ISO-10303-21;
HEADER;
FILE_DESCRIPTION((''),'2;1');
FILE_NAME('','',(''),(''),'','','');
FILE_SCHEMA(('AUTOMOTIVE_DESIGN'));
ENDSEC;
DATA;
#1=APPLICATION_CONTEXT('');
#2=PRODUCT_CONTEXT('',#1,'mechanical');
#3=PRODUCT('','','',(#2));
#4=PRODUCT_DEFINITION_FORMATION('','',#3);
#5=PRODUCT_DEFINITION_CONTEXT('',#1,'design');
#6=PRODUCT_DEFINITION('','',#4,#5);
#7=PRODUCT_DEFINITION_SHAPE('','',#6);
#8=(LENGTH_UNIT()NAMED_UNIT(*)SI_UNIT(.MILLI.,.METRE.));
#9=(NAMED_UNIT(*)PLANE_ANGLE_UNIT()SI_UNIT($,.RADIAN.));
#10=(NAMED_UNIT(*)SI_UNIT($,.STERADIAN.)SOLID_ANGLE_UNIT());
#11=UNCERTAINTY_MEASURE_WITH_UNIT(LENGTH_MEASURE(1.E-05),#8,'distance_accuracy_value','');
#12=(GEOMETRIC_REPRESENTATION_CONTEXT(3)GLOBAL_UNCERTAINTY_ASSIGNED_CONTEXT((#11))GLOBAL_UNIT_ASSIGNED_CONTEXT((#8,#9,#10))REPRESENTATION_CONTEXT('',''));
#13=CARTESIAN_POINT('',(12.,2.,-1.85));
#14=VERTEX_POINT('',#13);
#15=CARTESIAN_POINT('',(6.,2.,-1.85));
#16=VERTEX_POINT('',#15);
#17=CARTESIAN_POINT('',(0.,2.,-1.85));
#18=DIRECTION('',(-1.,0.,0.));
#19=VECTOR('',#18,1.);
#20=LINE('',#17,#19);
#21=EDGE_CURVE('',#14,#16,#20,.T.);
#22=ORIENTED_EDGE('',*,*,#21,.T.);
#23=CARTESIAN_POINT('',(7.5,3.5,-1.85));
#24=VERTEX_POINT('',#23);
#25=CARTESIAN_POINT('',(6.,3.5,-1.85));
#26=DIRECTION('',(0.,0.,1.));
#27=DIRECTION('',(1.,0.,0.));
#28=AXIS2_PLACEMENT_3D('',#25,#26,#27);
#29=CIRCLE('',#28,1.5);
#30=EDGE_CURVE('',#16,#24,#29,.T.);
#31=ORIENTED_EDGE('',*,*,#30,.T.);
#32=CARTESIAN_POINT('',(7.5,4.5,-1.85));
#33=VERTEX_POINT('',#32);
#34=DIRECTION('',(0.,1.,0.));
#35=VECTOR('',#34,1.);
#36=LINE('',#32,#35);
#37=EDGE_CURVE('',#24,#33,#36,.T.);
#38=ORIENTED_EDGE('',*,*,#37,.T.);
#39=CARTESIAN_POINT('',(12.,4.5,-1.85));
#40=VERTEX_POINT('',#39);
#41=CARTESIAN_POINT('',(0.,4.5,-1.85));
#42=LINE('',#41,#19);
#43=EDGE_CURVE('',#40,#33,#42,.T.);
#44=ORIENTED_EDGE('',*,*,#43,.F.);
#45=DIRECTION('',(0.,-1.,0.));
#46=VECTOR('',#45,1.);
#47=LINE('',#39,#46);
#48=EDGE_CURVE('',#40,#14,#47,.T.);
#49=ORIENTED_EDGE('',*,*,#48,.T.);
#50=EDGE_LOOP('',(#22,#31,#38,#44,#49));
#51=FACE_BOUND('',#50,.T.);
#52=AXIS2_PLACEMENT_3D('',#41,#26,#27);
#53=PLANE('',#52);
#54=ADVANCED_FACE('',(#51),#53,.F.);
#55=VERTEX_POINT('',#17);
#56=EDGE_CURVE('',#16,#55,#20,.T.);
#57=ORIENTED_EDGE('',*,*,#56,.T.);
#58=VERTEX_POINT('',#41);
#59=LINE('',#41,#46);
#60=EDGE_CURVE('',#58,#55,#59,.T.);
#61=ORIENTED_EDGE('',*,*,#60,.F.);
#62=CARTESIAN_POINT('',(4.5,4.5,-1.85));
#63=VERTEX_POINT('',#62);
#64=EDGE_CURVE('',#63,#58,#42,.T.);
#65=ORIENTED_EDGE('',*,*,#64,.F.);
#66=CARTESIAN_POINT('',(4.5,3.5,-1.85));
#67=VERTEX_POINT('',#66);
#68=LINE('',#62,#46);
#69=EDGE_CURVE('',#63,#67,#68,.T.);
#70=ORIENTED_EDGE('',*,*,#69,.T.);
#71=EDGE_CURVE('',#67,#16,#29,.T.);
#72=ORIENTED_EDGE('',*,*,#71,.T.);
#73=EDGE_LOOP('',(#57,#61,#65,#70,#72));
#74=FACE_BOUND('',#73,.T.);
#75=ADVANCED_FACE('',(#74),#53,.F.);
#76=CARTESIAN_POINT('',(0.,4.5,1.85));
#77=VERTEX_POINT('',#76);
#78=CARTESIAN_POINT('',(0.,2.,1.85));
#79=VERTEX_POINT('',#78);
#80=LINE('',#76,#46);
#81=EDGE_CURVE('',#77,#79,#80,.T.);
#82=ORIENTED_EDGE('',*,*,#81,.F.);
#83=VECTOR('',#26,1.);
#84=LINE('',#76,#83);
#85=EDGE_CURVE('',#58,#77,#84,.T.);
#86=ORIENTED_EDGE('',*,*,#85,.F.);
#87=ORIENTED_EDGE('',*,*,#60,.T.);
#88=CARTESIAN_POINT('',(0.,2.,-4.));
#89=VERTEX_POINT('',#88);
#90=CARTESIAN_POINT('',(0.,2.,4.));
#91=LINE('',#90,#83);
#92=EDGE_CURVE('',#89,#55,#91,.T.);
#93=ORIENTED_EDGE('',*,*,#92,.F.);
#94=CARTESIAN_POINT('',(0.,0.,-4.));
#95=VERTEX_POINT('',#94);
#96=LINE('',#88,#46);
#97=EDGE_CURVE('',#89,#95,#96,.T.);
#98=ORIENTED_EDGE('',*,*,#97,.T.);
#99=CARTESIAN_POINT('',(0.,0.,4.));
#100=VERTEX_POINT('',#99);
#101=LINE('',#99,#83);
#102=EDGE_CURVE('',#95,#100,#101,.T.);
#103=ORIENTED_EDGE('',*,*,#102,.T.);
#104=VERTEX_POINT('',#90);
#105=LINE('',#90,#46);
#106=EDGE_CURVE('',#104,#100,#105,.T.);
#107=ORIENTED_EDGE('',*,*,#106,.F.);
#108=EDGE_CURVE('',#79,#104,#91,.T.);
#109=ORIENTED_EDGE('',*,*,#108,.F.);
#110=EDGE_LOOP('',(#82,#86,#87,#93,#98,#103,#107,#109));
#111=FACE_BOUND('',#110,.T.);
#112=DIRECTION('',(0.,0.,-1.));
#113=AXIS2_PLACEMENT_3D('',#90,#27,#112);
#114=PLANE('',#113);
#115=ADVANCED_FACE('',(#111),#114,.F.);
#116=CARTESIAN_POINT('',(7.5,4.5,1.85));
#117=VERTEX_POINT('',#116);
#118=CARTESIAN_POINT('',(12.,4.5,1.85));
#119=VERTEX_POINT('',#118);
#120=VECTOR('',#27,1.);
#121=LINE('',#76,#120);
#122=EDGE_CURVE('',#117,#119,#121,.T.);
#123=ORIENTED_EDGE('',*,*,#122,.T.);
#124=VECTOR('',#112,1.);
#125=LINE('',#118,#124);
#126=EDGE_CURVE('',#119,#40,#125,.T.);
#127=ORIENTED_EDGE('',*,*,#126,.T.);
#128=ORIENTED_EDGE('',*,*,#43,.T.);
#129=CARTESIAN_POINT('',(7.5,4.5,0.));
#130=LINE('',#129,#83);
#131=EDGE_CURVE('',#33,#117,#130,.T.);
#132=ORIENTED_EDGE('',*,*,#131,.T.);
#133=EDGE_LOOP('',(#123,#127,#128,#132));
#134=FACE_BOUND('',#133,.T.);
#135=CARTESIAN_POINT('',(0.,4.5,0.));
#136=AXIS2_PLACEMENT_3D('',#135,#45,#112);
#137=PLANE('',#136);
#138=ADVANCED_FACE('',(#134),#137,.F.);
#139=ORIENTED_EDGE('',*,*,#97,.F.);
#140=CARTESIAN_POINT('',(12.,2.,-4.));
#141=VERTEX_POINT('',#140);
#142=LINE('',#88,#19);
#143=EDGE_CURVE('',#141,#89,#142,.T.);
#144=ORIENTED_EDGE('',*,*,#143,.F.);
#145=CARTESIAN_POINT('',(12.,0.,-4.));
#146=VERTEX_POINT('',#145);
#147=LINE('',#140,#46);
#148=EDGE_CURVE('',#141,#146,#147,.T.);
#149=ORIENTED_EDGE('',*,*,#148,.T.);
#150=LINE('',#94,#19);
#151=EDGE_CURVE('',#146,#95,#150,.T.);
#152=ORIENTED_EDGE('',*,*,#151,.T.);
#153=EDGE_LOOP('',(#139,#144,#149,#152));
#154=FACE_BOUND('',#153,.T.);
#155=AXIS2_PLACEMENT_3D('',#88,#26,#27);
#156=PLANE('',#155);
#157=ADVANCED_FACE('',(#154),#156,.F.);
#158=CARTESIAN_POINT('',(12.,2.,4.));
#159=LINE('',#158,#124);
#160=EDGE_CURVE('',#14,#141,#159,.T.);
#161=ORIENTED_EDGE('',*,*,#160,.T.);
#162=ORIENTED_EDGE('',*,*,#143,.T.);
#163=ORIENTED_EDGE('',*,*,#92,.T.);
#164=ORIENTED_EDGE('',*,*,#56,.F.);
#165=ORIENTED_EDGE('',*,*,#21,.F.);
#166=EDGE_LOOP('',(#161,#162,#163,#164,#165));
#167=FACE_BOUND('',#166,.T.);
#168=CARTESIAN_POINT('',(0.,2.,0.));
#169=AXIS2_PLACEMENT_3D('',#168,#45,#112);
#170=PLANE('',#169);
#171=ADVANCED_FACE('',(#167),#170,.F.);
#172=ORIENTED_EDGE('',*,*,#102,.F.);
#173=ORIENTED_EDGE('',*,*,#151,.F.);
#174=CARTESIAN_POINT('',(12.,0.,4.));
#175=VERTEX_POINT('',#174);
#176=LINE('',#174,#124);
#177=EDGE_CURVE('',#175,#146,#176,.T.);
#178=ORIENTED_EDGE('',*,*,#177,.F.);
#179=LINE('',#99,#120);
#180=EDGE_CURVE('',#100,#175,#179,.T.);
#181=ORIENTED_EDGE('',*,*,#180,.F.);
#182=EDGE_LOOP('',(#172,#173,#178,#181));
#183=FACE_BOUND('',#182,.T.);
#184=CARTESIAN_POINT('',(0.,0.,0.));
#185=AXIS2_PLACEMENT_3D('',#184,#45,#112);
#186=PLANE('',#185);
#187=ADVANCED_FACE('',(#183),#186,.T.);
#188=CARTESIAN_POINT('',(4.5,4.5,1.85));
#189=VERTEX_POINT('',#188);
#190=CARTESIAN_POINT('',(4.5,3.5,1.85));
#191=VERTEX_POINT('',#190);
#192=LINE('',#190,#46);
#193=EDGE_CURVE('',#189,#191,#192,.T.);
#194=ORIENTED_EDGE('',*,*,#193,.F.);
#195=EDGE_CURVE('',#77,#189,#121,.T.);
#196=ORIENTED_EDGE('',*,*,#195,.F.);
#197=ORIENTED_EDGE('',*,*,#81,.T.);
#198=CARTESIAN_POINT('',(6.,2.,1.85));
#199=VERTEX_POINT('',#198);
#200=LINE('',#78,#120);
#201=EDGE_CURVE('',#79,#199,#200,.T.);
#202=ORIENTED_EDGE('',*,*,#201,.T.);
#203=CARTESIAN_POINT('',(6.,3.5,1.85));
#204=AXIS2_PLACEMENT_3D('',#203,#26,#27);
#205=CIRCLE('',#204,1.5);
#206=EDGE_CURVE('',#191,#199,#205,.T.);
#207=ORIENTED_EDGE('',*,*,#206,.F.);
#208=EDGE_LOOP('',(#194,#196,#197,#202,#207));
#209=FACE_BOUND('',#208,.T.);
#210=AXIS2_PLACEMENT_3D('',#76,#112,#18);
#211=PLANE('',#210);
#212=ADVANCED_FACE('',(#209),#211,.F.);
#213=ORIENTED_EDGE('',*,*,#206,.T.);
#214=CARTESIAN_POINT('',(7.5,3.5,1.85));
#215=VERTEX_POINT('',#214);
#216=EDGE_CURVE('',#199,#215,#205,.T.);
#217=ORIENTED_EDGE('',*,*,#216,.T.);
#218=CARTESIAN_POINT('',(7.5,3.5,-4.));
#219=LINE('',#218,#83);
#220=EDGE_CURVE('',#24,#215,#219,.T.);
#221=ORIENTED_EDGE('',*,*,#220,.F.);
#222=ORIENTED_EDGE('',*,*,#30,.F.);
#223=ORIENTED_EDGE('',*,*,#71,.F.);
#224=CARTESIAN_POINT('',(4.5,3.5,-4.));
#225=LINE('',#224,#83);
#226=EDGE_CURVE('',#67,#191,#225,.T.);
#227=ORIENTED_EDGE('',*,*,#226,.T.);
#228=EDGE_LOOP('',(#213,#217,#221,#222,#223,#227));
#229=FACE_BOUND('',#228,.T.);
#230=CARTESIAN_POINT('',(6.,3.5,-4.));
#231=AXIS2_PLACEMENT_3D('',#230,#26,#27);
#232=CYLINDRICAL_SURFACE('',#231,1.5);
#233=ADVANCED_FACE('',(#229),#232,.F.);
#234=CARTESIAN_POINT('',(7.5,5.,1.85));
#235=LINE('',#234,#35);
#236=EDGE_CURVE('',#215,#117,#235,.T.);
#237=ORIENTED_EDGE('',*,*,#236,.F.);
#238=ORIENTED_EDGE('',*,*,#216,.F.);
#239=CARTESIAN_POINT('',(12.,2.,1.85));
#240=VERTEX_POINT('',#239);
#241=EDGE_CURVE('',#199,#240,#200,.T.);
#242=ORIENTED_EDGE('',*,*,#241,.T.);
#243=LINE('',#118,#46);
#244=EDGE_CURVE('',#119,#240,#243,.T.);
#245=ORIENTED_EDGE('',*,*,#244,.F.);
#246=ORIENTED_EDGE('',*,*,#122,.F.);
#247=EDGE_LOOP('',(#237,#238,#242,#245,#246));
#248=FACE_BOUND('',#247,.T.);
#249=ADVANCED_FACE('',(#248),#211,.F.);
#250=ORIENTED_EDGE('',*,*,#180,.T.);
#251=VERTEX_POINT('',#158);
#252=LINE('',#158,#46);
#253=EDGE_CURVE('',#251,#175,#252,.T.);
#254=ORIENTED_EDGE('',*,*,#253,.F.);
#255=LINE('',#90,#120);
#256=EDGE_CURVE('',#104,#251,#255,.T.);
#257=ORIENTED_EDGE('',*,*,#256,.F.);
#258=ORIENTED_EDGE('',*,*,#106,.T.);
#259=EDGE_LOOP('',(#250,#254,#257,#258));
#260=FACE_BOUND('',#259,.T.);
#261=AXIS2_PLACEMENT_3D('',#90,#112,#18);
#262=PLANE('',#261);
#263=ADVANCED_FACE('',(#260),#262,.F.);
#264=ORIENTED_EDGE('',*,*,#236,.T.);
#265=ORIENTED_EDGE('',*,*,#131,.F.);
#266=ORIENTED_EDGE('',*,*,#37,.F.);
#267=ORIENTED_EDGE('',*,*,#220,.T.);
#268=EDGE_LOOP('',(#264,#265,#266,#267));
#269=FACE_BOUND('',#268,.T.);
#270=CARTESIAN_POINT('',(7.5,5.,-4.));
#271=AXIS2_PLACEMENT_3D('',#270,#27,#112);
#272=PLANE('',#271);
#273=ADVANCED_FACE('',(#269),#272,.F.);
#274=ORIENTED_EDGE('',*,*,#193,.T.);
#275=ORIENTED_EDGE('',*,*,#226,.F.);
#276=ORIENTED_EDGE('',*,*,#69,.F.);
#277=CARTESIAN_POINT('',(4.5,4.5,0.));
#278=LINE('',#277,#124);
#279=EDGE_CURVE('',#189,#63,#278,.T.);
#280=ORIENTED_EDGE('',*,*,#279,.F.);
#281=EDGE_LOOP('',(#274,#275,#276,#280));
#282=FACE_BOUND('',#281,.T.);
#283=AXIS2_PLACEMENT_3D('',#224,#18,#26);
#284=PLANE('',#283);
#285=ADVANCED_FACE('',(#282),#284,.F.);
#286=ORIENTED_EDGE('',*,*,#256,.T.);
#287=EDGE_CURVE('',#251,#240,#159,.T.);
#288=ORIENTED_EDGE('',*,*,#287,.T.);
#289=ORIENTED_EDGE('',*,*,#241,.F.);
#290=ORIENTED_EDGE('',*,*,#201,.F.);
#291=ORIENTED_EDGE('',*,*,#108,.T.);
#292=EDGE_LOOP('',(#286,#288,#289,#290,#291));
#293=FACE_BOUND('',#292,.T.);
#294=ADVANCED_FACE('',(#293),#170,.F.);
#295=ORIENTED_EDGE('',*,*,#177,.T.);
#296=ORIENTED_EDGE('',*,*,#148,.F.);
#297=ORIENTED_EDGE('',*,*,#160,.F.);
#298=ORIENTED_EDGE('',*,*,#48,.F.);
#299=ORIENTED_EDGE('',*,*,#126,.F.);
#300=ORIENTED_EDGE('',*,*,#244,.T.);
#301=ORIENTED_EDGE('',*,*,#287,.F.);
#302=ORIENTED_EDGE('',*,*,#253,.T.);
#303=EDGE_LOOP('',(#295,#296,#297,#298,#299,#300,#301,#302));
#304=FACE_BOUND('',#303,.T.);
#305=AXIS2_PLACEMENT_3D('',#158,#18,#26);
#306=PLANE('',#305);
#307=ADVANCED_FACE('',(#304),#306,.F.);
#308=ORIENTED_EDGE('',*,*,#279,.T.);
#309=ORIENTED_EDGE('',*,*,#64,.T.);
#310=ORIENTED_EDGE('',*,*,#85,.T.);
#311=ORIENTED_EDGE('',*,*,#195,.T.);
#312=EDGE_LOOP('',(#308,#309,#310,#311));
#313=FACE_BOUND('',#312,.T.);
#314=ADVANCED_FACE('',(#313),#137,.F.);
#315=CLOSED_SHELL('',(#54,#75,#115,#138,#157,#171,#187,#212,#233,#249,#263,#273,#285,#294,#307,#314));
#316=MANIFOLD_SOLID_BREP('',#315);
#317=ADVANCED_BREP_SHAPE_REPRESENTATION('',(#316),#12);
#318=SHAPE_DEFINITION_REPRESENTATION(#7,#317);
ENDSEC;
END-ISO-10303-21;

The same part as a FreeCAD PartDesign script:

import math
import FreeCAD as App
import Part
import Sketcher
from FreeCAD import Vector


def add_polygon(sketch, points):
    """Adds a closed chain of lines whose ends are joined by coincident constraints."""
    first, n = sketch.GeometryCount, len(points)
    for a, b in zip(points, points[1:] + points[:1]):
        sketch.addGeometry(Part.LineSegment(App.Vector(*a, 0), App.Vector(*b, 0)), False)
    for i in range(n):
        sketch.addConstraint(Sketcher.Constraint("Coincident", first + i, 2, first + (i + 1) % n, 1))

doc = App.newDocument("Part")
body = doc.addObject("PartDesign::Body", "Body")

# Sketch on XZ plane
sketch1 = body.newObject("Sketcher::SketchObject", "Sketch")
sketch1.AttachmentSupport = (doc.getObject("XZ_Plane"), [""])
sketch1.MapMode = "FlatFace"
add_polygon(sketch1, [(0, -4), (0, 4), (12, 4), (12, -4)])  # lines 0-3
sketch1.addConstraint([
    Sketcher.Constraint("Vertical", 0),
    Sketcher.Constraint("Horizontal", 1),
    Sketcher.Constraint("Vertical", 2),
    Sketcher.Constraint("Horizontal", 3),
    Sketcher.Constraint("Symmetric", 0, 2, 3, 2, -1, 1),
    Sketcher.Constraint("DistanceX", 1, 1, 1, 2, 12.0),
    Sketcher.Constraint("DistanceY", 0, 1, 0, 2, 8.0),
])
pad1 = body.newObject("PartDesign::Pad", "Pad")
pad1.Profile = sketch1
pad1.Length = 2
pad1.Reversed = True

# Sketch on XZ plane
sketch2 = body.newObject("Sketcher::SketchObject", "Sketch001")
sketch2.AttachmentSupport = (doc.getObject("XZ_Plane"), [""])
sketch2.MapMode = "FlatFace"
sketch2.AttachmentOffset = App.Placement(Vector(0, 0, -2), App.Rotation())
add_polygon(sketch2, [(0, -1.9), (0, 1.9), (12, 1.9), (12, -1.9)])  # lines 0-3
sketch2.addConstraint([
    Sketcher.Constraint("Vertical", 0),
    Sketcher.Constraint("Horizontal", 1),
    Sketcher.Constraint("Vertical", 2),
    Sketcher.Constraint("Horizontal", 3),
    Sketcher.Constraint("Symmetric", 0, 2, 3, 2, -1, 1),
    Sketcher.Constraint("DistanceX", 1, 1, 1, 2, 12.0),
    Sketcher.Constraint("DistanceY", 0, 1, 0, 2, 3.7),
])
pad2 = body.newObject("PartDesign::Pad", "Pad001")
pad2.Profile = sketch2
pad2.Length = 2.5
pad2.Reversed = True

# Sketch on XY plane
sketch3 = body.newObject("Sketcher::SketchObject", "Sketch002")
sketch3.AttachmentSupport = (doc.getObject("XY_Plane"), [""])
sketch3.MapMode = "FlatFace"
sketch3.AttachmentOffset = App.Placement(Vector(0, 0, 1.85), App.Rotation())
sketch3.addGeometry([
    Part.LineSegment(Vector(4.5, 5, 0), Vector(4.5, 3.5, 0)),
    Part.ArcOfCircle(Part.Circle(Vector(6, 3.5, 0), Vector(0, 0, 1), 1.5), math.radians(180), math.radians(360)),
    Part.LineSegment(Vector(7.5, 3.5, 0), Vector(7.5, 5, 0)),
    Part.LineSegment(Vector(7.5, 5, 0), Vector(4.5, 5, 0)),
], False)
sketch3.addConstraint([
    Sketcher.Constraint("Tangent", 0, 2, 1, 1),
    Sketcher.Constraint("Tangent", 1, 2, 2, 1),
    Sketcher.Constraint("Coincident", 2, 2, 3, 1),
    Sketcher.Constraint("Coincident", 3, 2, 0, 1),
    Sketcher.Constraint("Vertical", 0),
    Sketcher.Constraint("Vertical", 2),
    Sketcher.Constraint("Horizontal", 3),
    Sketcher.Constraint("Radius", 1, 1.5),
    Sketcher.Constraint("DistanceY", 0, 2, 0, 1, 1.5),
    Sketcher.Constraint("DistanceX", -1, 1, 1, 3, 6.0),
    Sketcher.Constraint("DistanceY", -1, 1, 2, 2, 5.0),
])
pocket1 = body.newObject("PartDesign::Pocket", "Pocket")
pocket1.Profile = sketch3
pocket1.Type = "ThroughAll"

doc.recompute()
